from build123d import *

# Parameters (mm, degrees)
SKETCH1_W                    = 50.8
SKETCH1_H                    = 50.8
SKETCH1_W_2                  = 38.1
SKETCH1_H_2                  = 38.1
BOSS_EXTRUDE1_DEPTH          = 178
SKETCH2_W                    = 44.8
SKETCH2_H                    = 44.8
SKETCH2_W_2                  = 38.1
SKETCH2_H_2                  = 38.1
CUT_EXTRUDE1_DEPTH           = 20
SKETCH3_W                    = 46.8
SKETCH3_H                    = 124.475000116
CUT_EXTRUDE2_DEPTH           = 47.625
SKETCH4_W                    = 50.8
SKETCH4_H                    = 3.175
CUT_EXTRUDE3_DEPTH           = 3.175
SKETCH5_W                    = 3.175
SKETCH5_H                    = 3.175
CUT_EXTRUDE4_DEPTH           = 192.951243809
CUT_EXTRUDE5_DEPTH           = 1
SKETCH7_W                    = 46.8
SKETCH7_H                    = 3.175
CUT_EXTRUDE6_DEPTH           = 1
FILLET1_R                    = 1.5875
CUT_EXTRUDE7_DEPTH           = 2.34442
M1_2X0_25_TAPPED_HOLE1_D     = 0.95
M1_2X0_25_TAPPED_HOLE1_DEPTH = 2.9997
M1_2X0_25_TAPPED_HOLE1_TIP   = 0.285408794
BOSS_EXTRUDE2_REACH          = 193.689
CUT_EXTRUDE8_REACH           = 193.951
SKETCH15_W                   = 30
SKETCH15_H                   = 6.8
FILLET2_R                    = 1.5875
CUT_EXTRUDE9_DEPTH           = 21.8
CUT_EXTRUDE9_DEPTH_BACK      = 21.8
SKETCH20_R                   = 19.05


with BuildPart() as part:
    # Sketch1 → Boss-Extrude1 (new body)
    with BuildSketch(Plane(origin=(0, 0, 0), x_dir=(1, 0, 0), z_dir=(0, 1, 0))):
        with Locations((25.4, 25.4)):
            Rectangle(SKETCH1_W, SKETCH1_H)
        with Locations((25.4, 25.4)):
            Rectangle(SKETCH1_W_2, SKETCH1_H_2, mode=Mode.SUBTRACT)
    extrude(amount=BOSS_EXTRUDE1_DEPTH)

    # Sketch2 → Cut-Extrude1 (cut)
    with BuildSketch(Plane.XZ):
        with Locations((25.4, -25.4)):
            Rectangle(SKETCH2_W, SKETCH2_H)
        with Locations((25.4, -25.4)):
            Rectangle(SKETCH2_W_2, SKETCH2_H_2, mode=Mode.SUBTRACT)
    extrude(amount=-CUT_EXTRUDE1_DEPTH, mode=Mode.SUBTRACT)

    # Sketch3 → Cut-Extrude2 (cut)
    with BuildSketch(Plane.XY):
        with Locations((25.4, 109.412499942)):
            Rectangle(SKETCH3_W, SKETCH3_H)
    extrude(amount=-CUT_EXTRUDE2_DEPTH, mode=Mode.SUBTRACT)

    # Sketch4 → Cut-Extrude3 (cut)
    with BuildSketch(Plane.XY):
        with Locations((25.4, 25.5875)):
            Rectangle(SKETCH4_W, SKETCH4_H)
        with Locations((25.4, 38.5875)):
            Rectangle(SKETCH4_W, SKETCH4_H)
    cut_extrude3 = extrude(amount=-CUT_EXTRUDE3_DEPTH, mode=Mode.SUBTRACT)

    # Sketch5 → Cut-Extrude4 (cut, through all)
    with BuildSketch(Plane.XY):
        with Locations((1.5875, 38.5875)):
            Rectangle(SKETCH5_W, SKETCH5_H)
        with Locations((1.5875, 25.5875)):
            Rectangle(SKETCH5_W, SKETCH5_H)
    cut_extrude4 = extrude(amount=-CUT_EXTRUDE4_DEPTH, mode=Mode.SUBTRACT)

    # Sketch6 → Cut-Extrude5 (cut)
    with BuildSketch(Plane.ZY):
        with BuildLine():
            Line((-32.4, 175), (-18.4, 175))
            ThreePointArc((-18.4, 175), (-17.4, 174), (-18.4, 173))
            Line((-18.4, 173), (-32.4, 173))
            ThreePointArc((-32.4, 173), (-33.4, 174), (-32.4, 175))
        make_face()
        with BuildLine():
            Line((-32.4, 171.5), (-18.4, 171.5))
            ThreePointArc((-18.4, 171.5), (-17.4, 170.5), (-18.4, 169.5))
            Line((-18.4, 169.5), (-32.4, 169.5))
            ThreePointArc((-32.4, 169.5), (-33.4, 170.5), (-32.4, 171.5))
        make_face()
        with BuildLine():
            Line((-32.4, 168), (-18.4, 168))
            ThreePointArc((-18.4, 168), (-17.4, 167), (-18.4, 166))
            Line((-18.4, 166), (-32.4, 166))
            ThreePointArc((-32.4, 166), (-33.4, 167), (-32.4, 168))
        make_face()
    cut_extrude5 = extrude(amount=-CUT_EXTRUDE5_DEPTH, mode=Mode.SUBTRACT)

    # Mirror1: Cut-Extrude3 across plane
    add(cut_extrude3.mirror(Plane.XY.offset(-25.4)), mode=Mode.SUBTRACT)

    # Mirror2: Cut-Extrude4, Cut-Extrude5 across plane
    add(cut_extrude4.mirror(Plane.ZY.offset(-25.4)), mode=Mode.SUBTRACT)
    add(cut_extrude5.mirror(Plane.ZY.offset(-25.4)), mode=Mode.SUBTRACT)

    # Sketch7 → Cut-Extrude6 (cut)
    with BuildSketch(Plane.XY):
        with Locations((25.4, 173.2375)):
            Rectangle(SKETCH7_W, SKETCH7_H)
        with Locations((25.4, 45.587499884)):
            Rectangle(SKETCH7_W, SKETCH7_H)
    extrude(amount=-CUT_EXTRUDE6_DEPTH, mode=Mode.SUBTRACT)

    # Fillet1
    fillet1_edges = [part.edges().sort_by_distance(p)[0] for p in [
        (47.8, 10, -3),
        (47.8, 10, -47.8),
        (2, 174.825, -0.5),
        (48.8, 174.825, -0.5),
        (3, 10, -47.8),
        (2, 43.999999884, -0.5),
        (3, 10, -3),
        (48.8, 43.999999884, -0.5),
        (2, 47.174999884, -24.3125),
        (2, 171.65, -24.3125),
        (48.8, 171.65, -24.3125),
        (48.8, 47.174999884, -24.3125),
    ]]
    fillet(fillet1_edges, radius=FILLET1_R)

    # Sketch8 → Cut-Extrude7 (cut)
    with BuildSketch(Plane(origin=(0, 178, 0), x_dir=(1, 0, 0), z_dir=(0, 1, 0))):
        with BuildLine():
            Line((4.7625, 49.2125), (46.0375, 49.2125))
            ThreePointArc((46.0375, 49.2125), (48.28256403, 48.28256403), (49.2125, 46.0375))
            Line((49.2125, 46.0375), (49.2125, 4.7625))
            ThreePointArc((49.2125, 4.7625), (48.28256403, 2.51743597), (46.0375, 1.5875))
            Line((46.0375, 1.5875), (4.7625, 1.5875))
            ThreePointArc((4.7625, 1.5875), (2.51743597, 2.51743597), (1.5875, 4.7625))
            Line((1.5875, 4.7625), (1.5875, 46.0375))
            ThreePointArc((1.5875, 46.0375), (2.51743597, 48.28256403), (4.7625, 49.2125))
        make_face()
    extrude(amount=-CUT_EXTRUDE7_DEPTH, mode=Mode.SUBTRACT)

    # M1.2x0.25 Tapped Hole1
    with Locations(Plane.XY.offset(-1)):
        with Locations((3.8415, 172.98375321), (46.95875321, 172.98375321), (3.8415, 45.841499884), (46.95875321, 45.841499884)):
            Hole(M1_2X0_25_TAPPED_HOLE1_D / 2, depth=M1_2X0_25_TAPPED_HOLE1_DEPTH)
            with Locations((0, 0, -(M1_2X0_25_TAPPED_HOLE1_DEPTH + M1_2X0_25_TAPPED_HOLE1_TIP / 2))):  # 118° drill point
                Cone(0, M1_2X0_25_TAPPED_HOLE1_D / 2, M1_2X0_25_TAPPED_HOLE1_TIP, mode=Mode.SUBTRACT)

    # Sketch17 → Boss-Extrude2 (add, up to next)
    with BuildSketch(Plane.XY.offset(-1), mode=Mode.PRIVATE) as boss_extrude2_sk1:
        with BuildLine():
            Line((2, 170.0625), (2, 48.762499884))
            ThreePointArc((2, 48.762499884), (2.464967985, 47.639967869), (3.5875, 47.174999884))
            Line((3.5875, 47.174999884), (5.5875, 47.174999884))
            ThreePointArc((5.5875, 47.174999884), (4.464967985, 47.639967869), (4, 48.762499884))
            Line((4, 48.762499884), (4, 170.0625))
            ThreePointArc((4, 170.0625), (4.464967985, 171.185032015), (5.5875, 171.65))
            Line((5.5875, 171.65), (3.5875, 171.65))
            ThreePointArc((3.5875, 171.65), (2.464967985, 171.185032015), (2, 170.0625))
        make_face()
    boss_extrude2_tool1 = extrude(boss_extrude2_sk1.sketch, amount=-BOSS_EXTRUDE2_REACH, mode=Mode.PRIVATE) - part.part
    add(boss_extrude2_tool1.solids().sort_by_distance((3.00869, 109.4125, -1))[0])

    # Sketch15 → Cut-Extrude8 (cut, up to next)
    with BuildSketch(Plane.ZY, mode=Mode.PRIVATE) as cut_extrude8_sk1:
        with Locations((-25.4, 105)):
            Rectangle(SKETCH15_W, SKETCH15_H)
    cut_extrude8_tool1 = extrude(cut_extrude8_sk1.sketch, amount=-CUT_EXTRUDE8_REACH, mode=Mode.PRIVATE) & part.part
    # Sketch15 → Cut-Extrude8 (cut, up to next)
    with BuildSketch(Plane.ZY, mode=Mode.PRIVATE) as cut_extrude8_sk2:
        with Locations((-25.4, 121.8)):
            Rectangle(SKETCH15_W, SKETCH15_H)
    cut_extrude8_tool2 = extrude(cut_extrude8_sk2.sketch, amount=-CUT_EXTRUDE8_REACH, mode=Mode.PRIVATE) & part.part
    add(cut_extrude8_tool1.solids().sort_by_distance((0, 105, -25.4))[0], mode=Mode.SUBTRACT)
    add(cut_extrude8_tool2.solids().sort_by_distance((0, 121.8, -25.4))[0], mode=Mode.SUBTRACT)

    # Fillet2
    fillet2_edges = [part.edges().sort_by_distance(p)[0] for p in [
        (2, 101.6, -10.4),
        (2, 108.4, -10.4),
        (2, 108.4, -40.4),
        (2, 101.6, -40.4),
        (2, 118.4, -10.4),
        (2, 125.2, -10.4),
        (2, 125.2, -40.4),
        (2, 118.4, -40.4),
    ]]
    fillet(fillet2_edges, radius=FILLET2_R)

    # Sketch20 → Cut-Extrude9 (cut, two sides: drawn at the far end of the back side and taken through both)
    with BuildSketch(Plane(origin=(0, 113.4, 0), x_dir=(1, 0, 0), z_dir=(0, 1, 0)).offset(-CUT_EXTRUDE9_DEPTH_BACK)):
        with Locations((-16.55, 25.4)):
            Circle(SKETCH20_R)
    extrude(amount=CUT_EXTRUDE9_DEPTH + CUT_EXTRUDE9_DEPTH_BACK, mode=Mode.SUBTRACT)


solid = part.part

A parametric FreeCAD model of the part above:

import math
import FreeCAD as App
import Part
import Sketcher
Q = App.Units.Quantity


def edges_at(feature, points):
    """Names of the edges that pass closest to the given points."""
    edges = feature.Shape.Edges
    near = lambda p: min(range(len(edges)), key=lambda i: edges[i].distToShape(Part.Vertex(*p))[0])
    return sorted({f"Edge{near(p) + 1}" for p in points})

doc = App.newDocument("Part")
params = doc.addObject("Spreadsheet::Sheet", "Params")
for row, (alias, value) in enumerate([
    ("sketch1_width", "50.8 mm"),
    ("sketch1_width2", "38.1 mm"),
    ("pad1_length", "178 mm"),
    ("sketch2_width", "44.8 mm"),
    ("sketch2_width2", "38.1 mm"),
    ("pocket1_length", "20 mm"),
    ("sketch3_width", "46.8 mm"),
    ("pocket2_length", "47.625 mm"),
    ("sketch4_width", "50.8 mm"),
    ("pocket3_length", "3.175 mm"),
    ("sketch6_radius", "1 mm"),
    ("sketch6_height", "14 mm"),
    ("pocket5_length", "1 mm"),
    ("sketch7_width", "46.8 mm"),
    ("pocket6_length", "1 mm"),
    ("fillet_radius", "1.5875 mm"),
    ("pocket7_length", "2.34442 mm"),
    ("sketch9_diameter", "0.95 mm"),
    ("hole_diameter", "0.95 mm"),
    ("hole_depth", "2.9997 mm"),
    ("sketch10_width", "2 mm"),
    ("sketch10_height", "121.3 mm"),
    ("sketch11_height", "30 mm"),
    ("sketch11_width", "6.8 mm"),
    ("sketch12_height", "30 mm"),
    ("sketch12_width", "6.8 mm"),
    ("fillet2_radius", "1.5875 mm"),
    ("sketch13_diameter", "38.1 mm"),
    ("pocket10_length", "21.8 mm"),
    ("pocket10_length2", "21.8 mm"),
], start=1):
    params.set(f"A{row}", alias)
    params.set(f"B{row}", "=" + value)
    params.setAlias(f"B{row}", alias)

body = doc.addObject("PartDesign::Body", "Body")

sketch1 = body.newObject("Sketcher::SketchObject", "Sketch")
sketch1.AttachmentSupport = (doc.getObject("XZ_Plane"), [""])
sketch1.MapMode = "FlatFace"
sketch1.addGeometry([
    Part.LineSegment(App.Vector(0, -51, 0), App.Vector(0, 0, 0)),
    Part.LineSegment(App.Vector(0, 0, 0), App.Vector(51, 0, 0)),
    Part.LineSegment(App.Vector(51, 0, 0), App.Vector(51, -51, 0)),
    Part.LineSegment(App.Vector(51, -51, 0), App.Vector(0, -51, 0)),
    Part.LineSegment(App.Vector(44, -6, 0), App.Vector(6, -6, 0)),
    Part.LineSegment(App.Vector(6, -6, 0), App.Vector(6, -44, 0)),
    Part.LineSegment(App.Vector(6, -44, 0), App.Vector(44, -44, 0)),
    Part.LineSegment(App.Vector(44, -44, 0), App.Vector(44, -6, 0)),
], False)
sketch1.addConstraint([
    Sketcher.Constraint("Coincident", 0, 2, 1, 1),
    Sketcher.Constraint("Coincident", 1, 2, 2, 1),
    Sketcher.Constraint("Coincident", 2, 2, 3, 1),
    Sketcher.Constraint("Coincident", 3, 2, 0, 1),
    Sketcher.Constraint("Coincident", 4, 2, 5, 1),
    Sketcher.Constraint("Coincident", 5, 2, 6, 1),
    Sketcher.Constraint("Coincident", 6, 2, 7, 1),
    Sketcher.Constraint("Coincident", 7, 2, 4, 1),
    Sketcher.Constraint("Vertical", 0),
    Sketcher.Constraint("Horizontal", 1),
    Sketcher.Constraint("Vertical", 2),
    Sketcher.Constraint("Horizontal", 3),
    Sketcher.Constraint("Horizontal", 4),
    Sketcher.Constraint("Vertical", 5),
    Sketcher.Constraint("Horizontal", 6),
    Sketcher.Constraint("Vertical", 7),
    Sketcher.Constraint("Coincident", 0, 2, -1, 1),
    Sketcher.Constraint("Equal", 3, 0),
    Sketcher.Constraint("Equal", 6, 5),
    Sketcher.Constraint("DistanceX", 1, 1, 1, 2, Q("50.8 mm")),
    Sketcher.Constraint("DistanceX", 4, 2, 4, 1, Q("38.1 mm")),
    Sketcher.Constraint("DistanceX", -1, 1, 4, 2, Q("6.35 mm")),
    Sketcher.Constraint("DistanceY", 4, 2, -1, 1, Q("6.35 mm")),
])
sketch1.setExpression("Constraints[19]", "Params.sketch1_width")
sketch1.setExpression("Constraints[20]", "Params.sketch1_width2")
pad1 = body.newObject("PartDesign::Pad", "Pad")
pad1.Profile = sketch1
pad1.setExpression("Length", "Params.pad1_length")
pad1.Reversed = True

sketch2 = body.newObject("Sketcher::SketchObject", "Sketch001")
sketch2.AttachmentSupport = (doc.getObject("XZ_Plane"), [""])
sketch2.MapMode = "FlatFace"
sketch2.addGeometry([
    Part.LineSegment(App.Vector(3, -3, 0), App.Vector(3, -48, 0)),
    Part.LineSegment(App.Vector(3, -48, 0), App.Vector(48, -48, 0)),
    Part.LineSegment(App.Vector(48, -48, 0), App.Vector(48, -3, 0)),
    Part.LineSegment(App.Vector(48, -3, 0), App.Vector(3, -3, 0)),
    Part.LineSegment(App.Vector(44, -44, 0), App.Vector(6, -44, 0)),
    Part.LineSegment(App.Vector(6, -44, 0), App.Vector(6, -6, 0)),
    Part.LineSegment(App.Vector(6, -6, 0), App.Vector(44, -6, 0)),
    Part.LineSegment(App.Vector(44, -6, 0), App.Vector(44, -44, 0)),
], False)
sketch2.addConstraint([
    Sketcher.Constraint("Coincident", 0, 2, 1, 1),
    Sketcher.Constraint("Coincident", 1, 2, 2, 1),
    Sketcher.Constraint("Coincident", 2, 2, 3, 1),
    Sketcher.Constraint("Coincident", 3, 2, 0, 1),
    Sketcher.Constraint("Coincident", 4, 2, 5, 1),
    Sketcher.Constraint("Coincident", 5, 2, 6, 1),
    Sketcher.Constraint("Coincident", 6, 2, 7, 1),
    Sketcher.Constraint("Coincident", 7, 2, 4, 1),
    Sketcher.Constraint("Vertical", 0),
    Sketcher.Constraint("Horizontal", 1),
    Sketcher.Constraint("Vertical", 2),
    Sketcher.Constraint("Horizontal", 3),
    Sketcher.Constraint("Horizontal", 4),
    Sketcher.Constraint("Vertical", 5),
    Sketcher.Constraint("Horizontal", 6),
    Sketcher.Constraint("Vertical", 7),
    Sketcher.Constraint("Equal", 3, 0),
    Sketcher.Constraint("Equal", 6, 5),
    Sketcher.Constraint("DistanceX", 1, 1, 1, 2, Q("44.8 mm")),
    Sketcher.Constraint("DistanceX", 4, 2, 4, 1, Q("38.1 mm")),
    Sketcher.Constraint("DistanceX", -1, 1, 0, 2, Q("3 mm")),
    Sketcher.Constraint("DistanceY", 2, 2, -1, 1, Q("3 mm")),
    Sketcher.Constraint("DistanceX", -1, 1, 4, 2, Q("6.35 mm")),
    Sketcher.Constraint("DistanceY", 4, 2, -1, 1, Q("44.45 mm")),
])
sketch2.setExpression("Constraints[18]", "Params.sketch2_width")
sketch2.setExpression("Constraints[19]", "Params.sketch2_width2")
pocket1 = body.newObject("PartDesign::Pocket", "Pocket")
pocket1.Profile = sketch2
pocket1.setExpression("Length", "Params.pocket1_length")

sketch3 = body.newObject("Sketcher::SketchObject", "Sketch002")
sketch3.AttachmentSupport = (doc.getObject("XY_Plane"), [""])
sketch3.MapMode = "FlatFace"
sketch3.addGeometry([
    Part.LineSegment(App.Vector(2, 172, 0), App.Vector(2, 47, 0)),
    Part.LineSegment(App.Vector(2, 47, 0), App.Vector(49, 47, 0)),
    Part.LineSegment(App.Vector(49, 47, 0), App.Vector(49, 172, 0)),
    Part.LineSegment(App.Vector(49, 172, 0), App.Vector(2, 172, 0)),
], False)
sketch3.addConstraint([
    Sketcher.Constraint("Coincident", 0, 2, 1, 1),
    Sketcher.Constraint("Coincident", 1, 2, 2, 1),
    Sketcher.Constraint("Coincident", 2, 2, 3, 1),
    Sketcher.Constraint("Coincident", 3, 2, 0, 1),
    Sketcher.Constraint("Vertical", 0),
    Sketcher.Constraint("Horizontal", 1),
    Sketcher.Constraint("Vertical", 2),
    Sketcher.Constraint("Horizontal", 3),
    Sketcher.Constraint("DistanceX", 1, 1, 1, 2, Q("46.8 mm")),
    Sketcher.Constraint("DistanceX", -1, 1, 0, 2, Q("2 mm")),
    Sketcher.Constraint("DistanceY", 0, 2, 0, 1, Q("124.475 mm")),
    Sketcher.Constraint("DistanceY", -1, 1, 2, 2, Q("171.65 mm")),
])
sketch3.setExpression("Constraints[8]", "Params.sketch3_width")
pocket2 = body.newObject("PartDesign::Pocket", "Pocket001")
pocket2.Profile = sketch3
pocket2.setExpression("Length", "Params.pocket2_length")

sketch4 = body.newObject("Sketcher::SketchObject", "Sketch003")
sketch4.AttachmentSupport = (doc.getObject("XY_Plane"), [""])
sketch4.MapMode = "FlatFace"
sketch4.addGeometry([
    Part.LineSegment(App.Vector(0, 27.2, 0), App.Vector(0, 24, 0)),
    Part.LineSegment(App.Vector(0, 24, 0), App.Vector(50.8, 24, 0)),
    Part.LineSegment(App.Vector(50.8, 24, 0), App.Vector(50.8, 27.2, 0)),
    Part.LineSegment(App.Vector(50.8, 27.2, 0), App.Vector(0, 27.2, 0)),
    Part.LineSegment(App.Vector(0, 40.2, 0), App.Vector(0, 37, 0)),
    Part.LineSegment(App.Vector(0, 37, 0), App.Vector(50.8, 37, 0)),
    Part.LineSegment(App.Vector(50.8, 37, 0), App.Vector(50.8, 40.2, 0)),
    Part.LineSegment(App.Vector(50.8, 40.2, 0), App.Vector(0, 40.2, 0)),
], False)
sketch4.addConstraint([
    Sketcher.Constraint("Coincident", 0, 2, 1, 1),
    Sketcher.Constraint("Coincident", 1, 2, 2, 1),
    Sketcher.Constraint("Coincident", 2, 2, 3, 1),
    Sketcher.Constraint("Coincident", 3, 2, 0, 1),
    Sketcher.Constraint("Coincident", 4, 2, 5, 1),
    Sketcher.Constraint("Coincident", 5, 2, 6, 1),
    Sketcher.Constraint("Coincident", 6, 2, 7, 1),
    Sketcher.Constraint("Coincident", 7, 2, 4, 1),
    Sketcher.Constraint("Vertical", 0),
    Sketcher.Constraint("Horizontal", 1),
    Sketcher.Constraint("Vertical", 2),
    Sketcher.Constraint("Horizontal", 3),
    Sketcher.Constraint("Vertical", 4),
    Sketcher.Constraint("Horizontal", 5),
    Sketcher.Constraint("Vertical", 6),
    Sketcher.Constraint("Horizontal", 7),
    Sketcher.Constraint("PointOnObject", 0, 2, -2),
    Sketcher.Constraint("PointOnObject", 4, 2, -2),
    Sketcher.Constraint("Vertical", 2, 2, 5, 2),
    Sketcher.Constraint("Equal", 2, 4),
    Sketcher.Constraint("DistanceX", 1, 1, 1, 2, Q("50.8 mm")),
    Sketcher.Constraint("DistanceY", -1, 1, 0, 2, Q("24 mm")),
    Sketcher.Constraint("DistanceY", -1, 1, 4, 2, Q("37 mm")),
    Sketcher.Constraint("DistanceY", 0, 2, 0, 1, Q("3.175 mm")),
])
sketch4.setExpression("Constraints[20]", "Params.sketch4_width")
pocket3 = body.newObject("PartDesign::Pocket", "Pocket002")
pocket3.Profile = sketch4
pocket3.setExpression("Length", "Params.pocket3_length")

sketch5 = body.newObject("Sketcher::SketchObject", "Sketch004")
sketch5.AttachmentSupport = (doc.getObject("XY_Plane"), [""])
sketch5.MapMode = "FlatFace"
sketch5.addGeometry([
    Part.LineSegment(App.Vector(0, 40.2, 0), App.Vector(0, 37, 0)),
    Part.LineSegment(App.Vector(0, 37, 0), App.Vector(3.2, 37, 0)),
    Part.LineSegment(App.Vector(3.2, 37, 0), App.Vector(3.2, 40.2, 0)),
    Part.LineSegment(App.Vector(3.2, 40.2, 0), App.Vector(0, 40.2, 0)),
    Part.LineSegment(App.Vector(0, 27.2, 0), App.Vector(0, 24, 0)),
    Part.LineSegment(App.Vector(0, 24, 0), App.Vector(3.2, 24, 0)),
    Part.LineSegment(App.Vector(3.2, 24, 0), App.Vector(3.2, 27.2, 0)),
    Part.LineSegment(App.Vector(3.2, 27.2, 0), App.Vector(0, 27.2, 0)),
], False)
sketch5.addConstraint([
    Sketcher.Constraint("Coincident", 0, 2, 1, 1),
    Sketcher.Constraint("Coincident", 1, 2, 2, 1),
    Sketcher.Constraint("Coincident", 2, 2, 3, 1),
    Sketcher.Constraint("Coincident", 3, 2, 0, 1),
    Sketcher.Constraint("Coincident", 4, 2, 5, 1),
    Sketcher.Constraint("Coincident", 5, 2, 6, 1),
    Sketcher.Constraint("Coincident", 6, 2, 7, 1),
    Sketcher.Constraint("Coincident", 7, 2, 4, 1),
    Sketcher.Constraint("Vertical", 0),
    Sketcher.Constraint("Horizontal", 1),
    Sketcher.Constraint("Vertical", 2),
    Sketcher.Constraint("Horizontal", 3),
    Sketcher.Constraint("Vertical", 4),
    Sketcher.Constraint("Horizontal", 5),
    Sketcher.Constraint("Vertical", 6),
    Sketcher.Constraint("Horizontal", 7),
    Sketcher.Constraint("PointOnObject", 0, 2, -2),
    Sketcher.Constraint("PointOnObject", 4, 2, -2),
    Sketcher.Constraint("Vertical", 2, 2, 5, 2),
    Sketcher.Constraint("Equal", 7, 0),
    Sketcher.Constraint("Equal", 2, 4),
    Sketcher.Constraint("DistanceY", -1, 1, 0, 2, Q("37 mm")),
    Sketcher.Constraint("DistanceY", -1, 1, 4, 2, Q("24 mm")),
    Sketcher.Constraint("DistanceX", 1, 1, 1, 2, Q("3.175 mm")),
])
pocket4 = body.newObject("PartDesign::Pocket", "Pocket003")
pocket4.Profile = sketch5
pocket4.Type = "ThroughAll"

sketch6 = body.newObject("Sketcher::SketchObject", "Sketch005")
sketch6.AttachmentSupport = (doc.getObject("YZ_Plane"), [""])
sketch6.MapMode = "FlatFace"
sketch6.addGeometry([
    Part.LineSegment(App.Vector(175, -18.4, 0), App.Vector(175, -32.4, 0)),
    Part.ArcOfCircle(Part.Circle(App.Vector(174, -32.4, 0), App.Vector(0, 0, 1), 1), math.radians(180), math.radians(360)),
    Part.LineSegment(App.Vector(173, -32.4, 0), App.Vector(173, -18.4, 0)),
    Part.ArcOfCircle(Part.Circle(App.Vector(174, -18.4, 0), App.Vector(0, 0, 1), 1), math.radians(0), math.radians(180)),
    Part.LineSegment(App.Vector(171.5, -18.4, 0), App.Vector(171.5, -32.4, 0)),
    Part.ArcOfCircle(Part.Circle(App.Vector(170.5, -32.4, 0), App.Vector(0, 0, 1), 1), math.radians(180), math.radians(360)),
    Part.LineSegment(App.Vector(169.5, -32.4, 0), App.Vector(169.5, -18.4, 0)),
    Part.ArcOfCircle(Part.Circle(App.Vector(170.5, -18.4, 0), App.Vector(0, 0, 1), 1), math.radians(0), math.radians(180)),
    Part.LineSegment(App.Vector(168, -18.4, 0), App.Vector(168, -32.4, 0)),
    Part.ArcOfCircle(Part.Circle(App.Vector(167, -32.4, 0), App.Vector(0, 0, 1), 1), math.radians(180), math.radians(360)),
    Part.LineSegment(App.Vector(166, -32.4, 0), App.Vector(166, -18.4, 0)),
    Part.ArcOfCircle(Part.Circle(App.Vector(167, -18.4, 0), App.Vector(0, 0, 1), 1), math.radians(0), math.radians(180)),
], False)
sketch6.addConstraint([
    Sketcher.Constraint("Tangent", 0, 2, 1, 2),
    Sketcher.Constraint("Tangent", 1, 1, 2, 1),
    Sketcher.Constraint("Tangent", 2, 2, 3, 2),
    Sketcher.Constraint("Tangent", 3, 1, 0, 1),
    Sketcher.Constraint("Tangent", 4, 2, 5, 2),
    Sketcher.Constraint("Tangent", 5, 1, 6, 1),
    Sketcher.Constraint("Tangent", 6, 2, 7, 2),
    Sketcher.Constraint("Tangent", 7, 1, 4, 1),
    Sketcher.Constraint("Tangent", 8, 2, 9, 2),
    Sketcher.Constraint("Tangent", 9, 1, 10, 1),
    Sketcher.Constraint("Tangent", 10, 2, 11, 2),
    Sketcher.Constraint("Tangent", 11, 1, 8, 1),
    Sketcher.Constraint("Vertical", 0),
    Sketcher.Constraint("Vertical", 2),
    Sketcher.Constraint("Vertical", 4),
    Sketcher.Constraint("Vertical", 6),
    Sketcher.Constraint("Vertical", 8),
    Sketcher.Constraint("Vertical", 10),
    Sketcher.Constraint("Equal", 3, 5),
    Sketcher.Constraint("Equal", 7, 9),
    Sketcher.Constraint("Horizontal", 1, 3, 5, 3),
    Sketcher.Constraint("Horizontal", 3, 3, 7, 3),
    Sketcher.Constraint("Horizontal", 5, 3, 9, 3),
    Sketcher.Constraint("Horizontal", 7, 3, 11, 3),
    Sketcher.Constraint("Radius", 1, Q("1 mm")),
    Sketcher.Constraint("DistanceY", 0, 2, 0, 1, Q("14 mm")),
    Sketcher.Constraint("DistanceX", -1, 1, 1, 3, Q("174 mm")),
    Sketcher.Constraint("DistanceX", -1, 1, 9, 3, Q("167 mm")),
    Sketcher.Constraint("DistanceY", 1, 3, -1, 1, Q("32.4 mm")),
    Sketcher.Constraint("DistanceX", -1, 1, 5, 3, Q("170.5 mm")),
])
sketch6.setExpression("Constraints[24]", "Params.sketch6_radius")
sketch6.setExpression("Constraints[25]", "Params.sketch6_height")
pocket5 = body.newObject("PartDesign::Pocket", "Pocket004")
pocket5.Profile = sketch6
pocket5.setExpression("Length", "Params.pocket5_length")
pocket5.Reversed = True
doc.recompute()

datumplane = body.newObject("PartDesign::Plane", "DatumPlane")
datumplane.AttachmentSupport = (doc.getObject("XY_Plane"), [""])
datumplane.MapMode = "FlatFace"
datumplane.AttachmentOffset = App.Placement(App.Vector(0, 0, -25.4), App.Rotation())
mirrored = body.newObject("PartDesign::Mirrored", "Mirrored")
mirrored.Originals = [pocket3]
mirrored.MirrorPlane = (datumplane, [""])
body.Tip = mirrored
doc.recompute()

datumplane2 = body.newObject("PartDesign::Plane", "DatumPlane001")
datumplane2.AttachmentSupport = (doc.getObject("YZ_Plane"), [""])
datumplane2.MapMode = "FlatFace"
datumplane2.AttachmentOffset = App.Placement(App.Vector(0, 0, 25.4), App.Rotation())
mirrored2 = body.newObject("PartDesign::Mirrored", "Mirrored001")
mirrored2.Originals = [pocket4, pocket5]
mirrored2.MirrorPlane = (datumplane2, [""])
body.Tip = mirrored2

sketch7 = body.newObject("Sketcher::SketchObject", "Sketch006")
sketch7.AttachmentSupport = (doc.getObject("XY_Plane"), [""])
sketch7.MapMode = "FlatFace"
sketch7.addGeometry([
    Part.LineSegment(App.Vector(2, 174.8, 0), App.Vector(2, 171.7, 0)),
    Part.LineSegment(App.Vector(2, 171.7, 0), App.Vector(48.8, 171.7, 0)),
    Part.LineSegment(App.Vector(48.8, 171.7, 0), App.Vector(48.8, 174.8, 0)),
    Part.LineSegment(App.Vector(48.8, 174.8, 0), App.Vector(2, 174.8, 0)),
    Part.LineSegment(App.Vector(2, 47.2, 0), App.Vector(2, 44, 0)),
    Part.LineSegment(App.Vector(2, 44, 0), App.Vector(48.8, 44, 0)),
    Part.LineSegment(App.Vector(48.8, 44, 0), App.Vector(48.8, 47.2, 0)),
    Part.LineSegment(App.Vector(48.8, 47.2, 0), App.Vector(2, 47.2, 0)),
], False)
sketch7.addConstraint([
    Sketcher.Constraint("Coincident", 0, 2, 1, 1),
    Sketcher.Constraint("Coincident", 1, 2, 2, 1),
    Sketcher.Constraint("Coincident", 2, 2, 3, 1),
    Sketcher.Constraint("Coincident", 3, 2, 0, 1),
    Sketcher.Constraint("Coincident", 4, 2, 5, 1),
    Sketcher.Constraint("Coincident", 5, 2, 6, 1),
    Sketcher.Constraint("Coincident", 6, 2, 7, 1),
    Sketcher.Constraint("Coincident", 7, 2, 4, 1),
    Sketcher.Constraint("Vertical", 0),
    Sketcher.Constraint("Horizontal", 1),
    Sketcher.Constraint("Vertical", 2),
    Sketcher.Constraint("Horizontal", 3),
    Sketcher.Constraint("Vertical", 4),
    Sketcher.Constraint("Horizontal", 5),
    Sketcher.Constraint("Vertical", 6),
    Sketcher.Constraint("Horizontal", 7),
    Sketcher.Constraint("Vertical", 3, 2, 4, 2),
    Sketcher.Constraint("Vertical", 2, 2, 5, 2),
    Sketcher.Constraint("Equal", 2, 4),
    Sketcher.Constraint("DistanceX", 1, 1, 1, 2, Q("46.8 mm")),
    Sketcher.Constraint("DistanceX", -1, 1, 0, 2, Q("2 mm")),
    Sketcher.Constraint("DistanceY", -1, 1, 4, 2, Q("44 mm")),
    Sketcher.Constraint("DistanceY", 0, 2, 0, 1, Q("3.175 mm")),
    Sketcher.Constraint("DistanceY", -1, 1, 0, 2, Q("171.65 mm")),
])
sketch7.setExpression("Constraints[19]", "Params.sketch7_width")
pocket6 = body.newObject("PartDesign::Pocket", "Pocket005")
pocket6.Profile = sketch7
pocket6.setExpression("Length", "Params.pocket6_length")
doc.recompute()

fillet = body.newObject("PartDesign::Fillet", "Fillet")
fillet.Base = (pocket6, edges_at(pocket6, [
    (47.8, 10, -3),
    (47.8, 10, -47.8),
    (2, 174.825, -0.5),
    (48.8, 174.825, -0.5),
    (3, 10, -47.8),
    (2, 44, -0.5),
    (3, 10, -3),
    (48.8, 44, -0.5),
    (2, 47.175, -24.312),
    (2, 171.65, -24.312),
    (48.8, 171.65, -24.312),
    (48.8, 47.175, -24.312),
]))
fillet.setExpression("Radius", "Params.fillet_radius")

sketch8 = body.newObject("Sketcher::SketchObject", "Sketch007")
sketch8.AttachmentSupport = (doc.getObject("XZ_Plane"), [""])
sketch8.MapMode = "FlatFace"
sketch8.AttachmentOffset = App.Placement(App.Vector(0, 0, -178), App.Rotation())
sketch8.addGeometry([
    Part.LineSegment(App.Vector(46, -49.2, 0), App.Vector(4.8, -49.2, 0)),
    Part.ArcOfCircle(Part.Circle(App.Vector(4.8, -46, 0), App.Vector(0, 0, 1), 3.2), math.radians(-180), math.radians(-90)),
    Part.LineSegment(App.Vector(1.6, -46, 0), App.Vector(1.6, -4.8, 0)),
    Part.ArcOfCircle(Part.Circle(App.Vector(4.8, -4.8, 0), App.Vector(0, 0, 1), 3.2), math.radians(90), math.radians(180)),
    Part.LineSegment(App.Vector(4.8, -1.6, 0), App.Vector(46, -1.6, 0)),
    Part.ArcOfCircle(Part.Circle(App.Vector(46, -4.8, 0), App.Vector(0, 0, 1), 3.2), math.radians(0), math.radians(90)),
    Part.LineSegment(App.Vector(49.2, -4.8, 0), App.Vector(49.2, -46, 0)),
    Part.ArcOfCircle(Part.Circle(App.Vector(46, -46, 0), App.Vector(0, 0, 1), 3.2), math.radians(-90), math.radians(0)),
], False)
sketch8.addConstraint([
    Sketcher.Constraint("Tangent", 0, 2, 1, 2),
    Sketcher.Constraint("Tangent", 1, 1, 2, 1),
    Sketcher.Constraint("Tangent", 2, 2, 3, 2),
    Sketcher.Constraint("Tangent", 3, 1, 4, 1),
    Sketcher.Constraint("Tangent", 4, 2, 5, 2),
    Sketcher.Constraint("Tangent", 5, 1, 6, 1),
    Sketcher.Constraint("Tangent", 6, 2, 7, 2),
    Sketcher.Constraint("Tangent", 7, 1, 0, 1),
    Sketcher.Constraint("Horizontal", 0),
    Sketcher.Constraint("Vertical", 2),
    Sketcher.Constraint("Horizontal", 4),
    Sketcher.Constraint("Vertical", 6),
    Sketcher.Constraint("Equal", 1, 3),
    Sketcher.Constraint("Equal", 3, 5),
    Sketcher.Constraint("Equal", 5, 7),
    Sketcher.Constraint("Equal", 4, 2),
    Sketcher.Constraint("Radius", 1, Q("3.175 mm")),
    Sketcher.Constraint("DistanceX", 0, 2, 0, 1, Q("41.275 mm")),
    Sketcher.Constraint("DistanceX", -1, 1, 1, 3, Q("4.7625 mm")),
    Sketcher.Constraint("DistanceY", 1, 3, -1, 1, Q("46.0375 mm")),
])
pocket7 = body.newObject("PartDesign::Pocket", "Pocket006")
pocket7.Profile = sketch8
pocket7.setExpression("Length", "Params.pocket7_length")
pocket7.Reversed = True

sketch9 = body.newObject("Sketcher::SketchObject", "Sketch008")
sketch9.AttachmentSupport = (doc.getObject("XY_Plane"), [""])
sketch9.MapMode = "FlatFace"
sketch9.AttachmentOffset = App.Placement(App.Vector(0, 0, -1), App.Rotation())
sketch9.addGeometry([
    Part.Circle(App.Vector(3.84, 172.98, 0), App.Vector(0, 0, 1), 0.47),
    Part.Circle(App.Vector(46.96, 172.98, 0), App.Vector(0, 0, 1), 0.47),
    Part.Circle(App.Vector(3.84, 45.84, 0), App.Vector(0, 0, 1), 0.47),
    Part.Circle(App.Vector(46.96, 45.84, 0), App.Vector(0, 0, 1), 0.47),
], False)
sketch9.addConstraint([
    Sketcher.Constraint("Equal", 0, 1),
    Sketcher.Constraint("Equal", 1, 2),
    Sketcher.Constraint("Equal", 2, 3),
    Sketcher.Constraint("Horizontal", 0, 3, 1, 3),
    Sketcher.Constraint("Horizontal", 2, 3, 3, 3),
    Sketcher.Constraint("Vertical", 0, 3, 2, 3),
    Sketcher.Constraint("Vertical", 1, 3, 3, 3),
    Sketcher.Constraint("Diameter", 0, Q("0.95 mm")),
    Sketcher.Constraint("DistanceX", -1, 1, 0, 3, Q("3.8415 mm")),
    Sketcher.Constraint("DistanceY", -1, 1, 2, 3, Q("45.8415 mm")),
    Sketcher.Constraint("DistanceY", -1, 1, 0, 3, Q("172.983753 mm")),
    Sketcher.Constraint("DistanceX", -1, 1, 1, 3, Q("46.958753 mm")),
])
sketch9.setExpression("Constraints[7]", "Params.sketch9_diameter")
doc.recompute()
hole = body.newObject("PartDesign::Hole", "Hole")
hole.Profile = sketch9
hole.ThreadType = "None"
hole.setExpression("Diameter", "Params.hole_diameter")
hole.DepthType = "Dimension"
hole.setExpression("Depth", "Params.hole_depth")
hole.DrillPoint = "Angled"
hole.DrillPointAngle = 118

sketch10 = body.newObject("Sketcher::SketchObject", "Sketch009")
sketch10.AttachmentSupport = (doc.getObject("XY_Plane"), [""])
sketch10.MapMode = "FlatFace"
sketch10.AttachmentOffset = App.Placement(App.Vector(0, 0, -1), App.Rotation())
sketch10.addGeometry([
    Part.LineSegment(App.Vector(2, 170.1, 0), App.Vector(2, 48.8, 0)),
    Part.ArcOfCircle(Part.Circle(App.Vector(3.6, 48.8, 0), App.Vector(0, 0, 1), 1.6), math.radians(180), math.radians(270)),
    Part.LineSegment(App.Vector(3.6, 47.2, 0), App.Vector(5.6, 47.2, 0)),
    Part.ArcOfCircle(Part.Circle(App.Vector(5.6, 48.8, 0), App.Vector(0, 0, 1), 1.6), math.radians(180), math.radians(270)),
    Part.LineSegment(App.Vector(4, 48.8, 0), App.Vector(4, 170.1, 0)),
    Part.ArcOfCircle(Part.Circle(App.Vector(5.6, 170.1, 0), App.Vector(0, 0, 1), 1.6), math.radians(90), math.radians(180)),
    Part.LineSegment(App.Vector(5.6, 171.7, 0), App.Vector(3.6, 171.7, 0)),
    Part.ArcOfCircle(Part.Circle(App.Vector(3.6, 170.1, 0), App.Vector(0, 0, 1), 1.6), math.radians(90), math.radians(180)),
], False)
sketch10.addConstraint([
    Sketcher.Constraint("Tangent", 0, 2, 1, 1),
    Sketcher.Constraint("Tangent", 1, 2, 2, 1),
    Sketcher.Constraint("Tangent", 2, 2, 3, 2),
    Sketcher.Constraint("Tangent", 3, 1, 4, 1),
    Sketcher.Constraint("Tangent", 4, 2, 5, 2),
    Sketcher.Constraint("Tangent", 5, 1, 6, 1),
    Sketcher.Constraint("Tangent", 6, 2, 7, 1),
    Sketcher.Constraint("Tangent", 7, 2, 0, 1),
    Sketcher.Constraint("Vertical", 0),
    Sketcher.Constraint("Horizontal", 2),
    Sketcher.Constraint("Vertical", 4),
    Sketcher.Constraint("Horizontal", 6),
    Sketcher.Constraint("Equal", 1, 3),
    Sketcher.Constraint("Equal", 3, 5),
    Sketcher.Constraint("Equal", 5, 7),
    Sketcher.Constraint("DistanceX", 2, 1, 2, 2, Q("2 mm")),
    Sketcher.Constraint("DistanceY", 0, 2, 0, 1, Q("121.3 mm")),
    Sketcher.Constraint("DistanceX", -1, 1, 0, 2, Q("2 mm")),
    Sketcher.Constraint("Radius", 1, Q("1.5875 mm")),
    Sketcher.Constraint("DistanceY", -1, 1, 5, 1, Q("171.65 mm")),
])
sketch10.setExpression("Constraints[15]", "Params.sketch10_width")
sketch10.setExpression("Constraints[16]", "Params.sketch10_height")
pad2 = body.newObject("PartDesign::Pad", "Pad001")
pad2.Profile = sketch10
pad2.Type = "UpToFirst"
pad2.Reversed = True

sketch11 = body.newObject("Sketcher::SketchObject", "Sketch010")
sketch11.AttachmentSupport = (doc.getObject("YZ_Plane"), [""])
sketch11.MapMode = "FlatFace"
sketch11.addGeometry([
    Part.LineSegment(App.Vector(108, -40, 0), App.Vector(102, -40, 0)),
    Part.LineSegment(App.Vector(102, -40, 0), App.Vector(102, -10, 0)),
    Part.LineSegment(App.Vector(102, -10, 0), App.Vector(108, -10, 0)),
    Part.LineSegment(App.Vector(108, -10, 0), App.Vector(108, -40, 0)),
], False)
sketch11.addConstraint([
    Sketcher.Constraint("Coincident", 0, 2, 1, 1),
    Sketcher.Constraint("Coincident", 1, 2, 2, 1),
    Sketcher.Constraint("Coincident", 2, 2, 3, 1),
    Sketcher.Constraint("Coincident", 3, 2, 0, 1),
    Sketcher.Constraint("Horizontal", 0),
    Sketcher.Constraint("Vertical", 1),
    Sketcher.Constraint("Horizontal", 2),
    Sketcher.Constraint("Vertical", 3),
    Sketcher.Constraint("DistanceY", 1, 1, 1, 2, Q("30 mm")),
    Sketcher.Constraint("DistanceX", 0, 2, 0, 1, Q("6.8 mm")),
    Sketcher.Constraint("DistanceX", -1, 1, 0, 2, Q("101.6 mm")),
    Sketcher.Constraint("DistanceY", 0, 2, -1, 1, Q("40.4 mm")),
])
sketch11.setExpression("Constraints[8]", "Params.sketch11_height")
sketch11.setExpression("Constraints[9]", "Params.sketch11_width")
pocket8 = body.newObject("PartDesign::Pocket", "Pocket007")
pocket8.Profile = sketch11
pocket8.Type = "UpToFirst"
pocket8.Reversed = True

sketch12 = body.newObject("Sketcher::SketchObject", "Sketch011")
sketch12.AttachmentSupport = (doc.getObject("YZ_Plane"), [""])
sketch12.MapMode = "FlatFace"
sketch12.addGeometry([
    Part.LineSegment(App.Vector(125, -40, 0), App.Vector(118, -40, 0)),
    Part.LineSegment(App.Vector(118, -40, 0), App.Vector(118, -10, 0)),
    Part.LineSegment(App.Vector(118, -10, 0), App.Vector(125, -10, 0)),
    Part.LineSegment(App.Vector(125, -10, 0), App.Vector(125, -40, 0)),
], False)
sketch12.addConstraint([
    Sketcher.Constraint("Coincident", 0, 2, 1, 1),
    Sketcher.Constraint("Coincident", 1, 2, 2, 1),
    Sketcher.Constraint("Coincident", 2, 2, 3, 1),
    Sketcher.Constraint("Coincident", 3, 2, 0, 1),
    Sketcher.Constraint("Horizontal", 0),
    Sketcher.Constraint("Vertical", 1),
    Sketcher.Constraint("Horizontal", 2),
    Sketcher.Constraint("Vertical", 3),
    Sketcher.Constraint("DistanceY", 1, 1, 1, 2, Q("30 mm")),
    Sketcher.Constraint("DistanceX", 0, 2, 0, 1, Q("6.8 mm")),
    Sketcher.Constraint("DistanceX", -1, 1, 0, 2, Q("118.4 mm")),
    Sketcher.Constraint("DistanceY", 0, 2, -1, 1, Q("40.4 mm")),
])
sketch12.setExpression("Constraints[8]", "Params.sketch12_height")
sketch12.setExpression("Constraints[9]", "Params.sketch12_width")
pocket9 = body.newObject("PartDesign::Pocket", "Pocket008")
pocket9.Profile = sketch12
pocket9.Type = "UpToFirst"
pocket9.Reversed = True
doc.recompute()

fillet2 = body.newObject("PartDesign::Fillet", "Fillet001")
fillet2.Base = (pocket9, edges_at(pocket9, [
    (2, 101.6, -10.4),
    (2, 108.4, -10.4),
    (2, 108.4, -40.4),
    (2, 101.6, -40.4),
    (2, 118.4, -10.4),
    (2, 125.2, -10.4),
    (2, 125.2, -40.4),
    (2, 118.4, -40.4),
]))
fillet2.setExpression("Radius", "Params.fillet2_radius")

sketch13 = body.newObject("Sketcher::SketchObject", "Sketch012")
sketch13.AttachmentSupport = (doc.getObject("XZ_Plane"), [""])
sketch13.MapMode = "FlatFace"
sketch13.AttachmentOffset = App.Placement(App.Vector(0, 0, -113.4), App.Rotation())
sketch13.addGeometry(Part.Circle(App.Vector(-17, -25, 0), App.Vector(0, 0, 1), 19), False)
sketch13.addConstraint([
    Sketcher.Constraint("Diameter", 0, Q("38.1 mm")),
    Sketcher.Constraint("DistanceY", 0, 3, -1, 1, Q("25.4 mm")),
    Sketcher.Constraint("DistanceX", 0, 3, -1, 1, Q("16.55 mm")),
])
sketch13.setExpression("Constraints[0]", "Params.sketch13_diameter")
pocket10 = body.newObject("PartDesign::Pocket", "Pocket009")
pocket10.Profile = sketch13
pocket10.Type = "TwoLengths"
pocket10.setExpression("Length", "Params.pocket10_length")
pocket10.setExpression("Length2", "Params.pocket10_length2")

doc.recompute()
